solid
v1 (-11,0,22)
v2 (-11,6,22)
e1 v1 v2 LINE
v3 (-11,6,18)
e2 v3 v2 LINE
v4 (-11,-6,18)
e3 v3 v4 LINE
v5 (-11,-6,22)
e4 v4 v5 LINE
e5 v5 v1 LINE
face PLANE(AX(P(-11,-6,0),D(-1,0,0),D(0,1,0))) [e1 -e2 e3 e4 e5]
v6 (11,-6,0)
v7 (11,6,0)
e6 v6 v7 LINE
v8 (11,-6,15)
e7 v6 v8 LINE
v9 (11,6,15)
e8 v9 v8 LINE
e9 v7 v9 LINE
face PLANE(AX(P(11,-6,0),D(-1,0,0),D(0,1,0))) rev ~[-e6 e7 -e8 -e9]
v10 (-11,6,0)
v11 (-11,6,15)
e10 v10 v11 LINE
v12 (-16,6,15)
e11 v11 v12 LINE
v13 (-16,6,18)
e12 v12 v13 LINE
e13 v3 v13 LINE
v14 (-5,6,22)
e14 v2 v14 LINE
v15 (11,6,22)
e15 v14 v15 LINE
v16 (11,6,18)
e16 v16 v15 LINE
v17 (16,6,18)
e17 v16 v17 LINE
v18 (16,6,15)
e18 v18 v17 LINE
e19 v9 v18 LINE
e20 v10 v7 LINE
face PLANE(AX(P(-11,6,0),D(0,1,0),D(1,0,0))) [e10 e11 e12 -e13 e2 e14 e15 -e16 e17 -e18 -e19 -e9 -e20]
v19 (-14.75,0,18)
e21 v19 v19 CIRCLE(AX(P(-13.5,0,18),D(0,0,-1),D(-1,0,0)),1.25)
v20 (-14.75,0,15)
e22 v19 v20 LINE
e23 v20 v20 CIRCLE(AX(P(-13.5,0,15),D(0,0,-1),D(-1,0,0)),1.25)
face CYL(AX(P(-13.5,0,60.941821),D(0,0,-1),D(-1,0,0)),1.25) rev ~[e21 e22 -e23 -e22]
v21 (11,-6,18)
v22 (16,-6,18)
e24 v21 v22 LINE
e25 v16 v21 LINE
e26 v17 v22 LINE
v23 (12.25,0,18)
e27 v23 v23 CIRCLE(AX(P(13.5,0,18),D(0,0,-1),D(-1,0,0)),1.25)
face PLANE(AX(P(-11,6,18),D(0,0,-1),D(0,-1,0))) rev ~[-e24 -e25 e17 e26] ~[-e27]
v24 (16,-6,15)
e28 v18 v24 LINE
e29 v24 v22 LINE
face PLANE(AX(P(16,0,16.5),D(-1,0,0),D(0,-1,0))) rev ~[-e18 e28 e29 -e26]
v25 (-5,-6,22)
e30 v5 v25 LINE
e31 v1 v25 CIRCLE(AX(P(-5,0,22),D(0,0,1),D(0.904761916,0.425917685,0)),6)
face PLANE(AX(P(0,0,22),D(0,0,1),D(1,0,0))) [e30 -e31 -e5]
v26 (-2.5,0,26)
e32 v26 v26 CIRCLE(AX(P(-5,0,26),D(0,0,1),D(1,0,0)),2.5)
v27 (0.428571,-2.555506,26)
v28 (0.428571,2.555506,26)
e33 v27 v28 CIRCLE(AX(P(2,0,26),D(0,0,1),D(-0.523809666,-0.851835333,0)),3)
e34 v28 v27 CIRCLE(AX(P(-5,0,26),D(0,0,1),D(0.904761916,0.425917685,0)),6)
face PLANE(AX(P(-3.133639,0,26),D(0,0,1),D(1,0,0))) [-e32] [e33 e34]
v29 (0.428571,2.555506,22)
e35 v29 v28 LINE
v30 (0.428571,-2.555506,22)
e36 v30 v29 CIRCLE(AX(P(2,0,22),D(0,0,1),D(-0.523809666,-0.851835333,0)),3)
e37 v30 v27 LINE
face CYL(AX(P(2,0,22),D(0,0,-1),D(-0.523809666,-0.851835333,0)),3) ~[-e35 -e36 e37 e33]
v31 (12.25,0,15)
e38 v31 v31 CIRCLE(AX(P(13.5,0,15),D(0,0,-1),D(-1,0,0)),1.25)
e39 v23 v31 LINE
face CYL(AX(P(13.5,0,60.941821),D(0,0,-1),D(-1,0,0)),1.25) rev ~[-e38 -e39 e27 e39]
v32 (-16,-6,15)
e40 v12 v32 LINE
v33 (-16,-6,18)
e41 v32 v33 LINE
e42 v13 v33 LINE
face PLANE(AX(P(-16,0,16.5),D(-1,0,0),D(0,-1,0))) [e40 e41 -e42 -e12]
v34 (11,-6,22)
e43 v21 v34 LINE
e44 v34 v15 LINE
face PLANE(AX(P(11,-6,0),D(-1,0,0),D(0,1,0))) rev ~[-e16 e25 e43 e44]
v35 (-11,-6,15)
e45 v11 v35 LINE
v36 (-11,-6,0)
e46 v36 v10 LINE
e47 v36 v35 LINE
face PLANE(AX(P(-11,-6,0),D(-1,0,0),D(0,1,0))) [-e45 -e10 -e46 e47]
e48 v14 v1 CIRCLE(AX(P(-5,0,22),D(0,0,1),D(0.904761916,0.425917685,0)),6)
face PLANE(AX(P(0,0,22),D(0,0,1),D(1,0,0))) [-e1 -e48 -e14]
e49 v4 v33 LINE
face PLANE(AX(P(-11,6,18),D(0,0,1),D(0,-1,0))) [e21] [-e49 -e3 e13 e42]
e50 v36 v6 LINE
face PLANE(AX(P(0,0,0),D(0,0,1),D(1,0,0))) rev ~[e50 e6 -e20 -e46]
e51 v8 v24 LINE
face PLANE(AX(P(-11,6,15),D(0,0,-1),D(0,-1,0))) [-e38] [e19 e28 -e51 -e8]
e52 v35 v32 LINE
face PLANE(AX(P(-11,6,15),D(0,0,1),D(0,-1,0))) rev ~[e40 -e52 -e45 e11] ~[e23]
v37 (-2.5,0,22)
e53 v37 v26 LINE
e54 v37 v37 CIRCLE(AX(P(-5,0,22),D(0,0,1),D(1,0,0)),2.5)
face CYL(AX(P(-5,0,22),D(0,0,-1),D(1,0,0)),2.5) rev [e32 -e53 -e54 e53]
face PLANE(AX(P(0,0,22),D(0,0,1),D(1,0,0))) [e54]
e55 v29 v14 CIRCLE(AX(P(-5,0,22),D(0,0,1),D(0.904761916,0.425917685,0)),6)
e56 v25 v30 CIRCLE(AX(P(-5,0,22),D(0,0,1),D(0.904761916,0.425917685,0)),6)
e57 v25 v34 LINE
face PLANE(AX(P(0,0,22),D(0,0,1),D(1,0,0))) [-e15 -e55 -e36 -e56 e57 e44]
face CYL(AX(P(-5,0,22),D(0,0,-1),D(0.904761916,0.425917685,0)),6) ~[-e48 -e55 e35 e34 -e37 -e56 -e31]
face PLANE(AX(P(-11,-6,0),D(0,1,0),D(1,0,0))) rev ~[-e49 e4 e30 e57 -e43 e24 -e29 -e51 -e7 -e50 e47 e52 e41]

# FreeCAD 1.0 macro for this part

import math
import FreeCAD as App
import Part
import Sketcher

doc = App.newDocument("Part")
body = doc.addObject("PartDesign::Body", "Body")

# Sketch on XY plane
sketch1 = body.newObject("Sketcher::SketchObject", "Sketch")
sketch1.AttachmentSupport = (doc.getObject("XY_Plane"), [""])
sketch1.MapMode = "FlatFace"
sketch1.addGeometry([
    Part.LineSegment(App.Vector(-11, 6, 0), App.Vector(-11, -6, 0)),
    Part.LineSegment(App.Vector(-11, -6, 0), App.Vector(11, -6, 0)),
    Part.LineSegment(App.Vector(11, -6, 0), App.Vector(11, 6, 0)),
    Part.LineSegment(App.Vector(11, 6, 0), App.Vector(-11, 6, 0)),
], False)
sketch1.addConstraint([
    Sketcher.Constraint("Coincident", 0, 2, 1, 1),
    Sketcher.Constraint("Coincident", 1, 2, 2, 1),
    Sketcher.Constraint("Coincident", 2, 2, 3, 1),
    Sketcher.Constraint("Coincident", 3, 2, 0, 1),
    Sketcher.Constraint("Vertical", 0),
    Sketcher.Constraint("Horizontal", 1),
    Sketcher.Constraint("Vertical", 2),
    Sketcher.Constraint("Horizontal", 3),
    Sketcher.Constraint("Symmetric", 0, 2, 2, 2, -1, 1),
    Sketcher.Constraint("DistanceX", 1, 1, 1, 2, 22.0),
    Sketcher.Constraint("DistanceY", 0, 2, 0, 1, 12.0),
])
pad1 = body.newObject("PartDesign::Pad", "Pad")
pad1.Profile = sketch1
pad1.Length = 22

# Sketch on XY plane
sketch2 = body.newObject("Sketcher::SketchObject", "Sketch001")
sketch2.AttachmentSupport = (doc.getObject("XY_Plane"), [""])
sketch2.MapMode = "FlatFace"
sketch2.AttachmentOffset = App.Placement(App.Vector(0, 0, 22), App.Rotation())
sketch2.addGeometry([
    Part.ArcOfCircle(Part.Circle(App.Vector(2, 0, 0), App.Vector(0, 0, 1), 3), math.radians(-122), math.radians(122)),
    Part.ArcOfCircle(Part.Circle(App.Vector(-5, 0, 0), App.Vector(0, 0, 1), 6), math.radians(25), math.radians(335)),
    Part.Circle(App.Vector(-5, 0, 0), App.Vector(0, 0, 1), 2.5),
], False)
sketch2.addConstraint([
    Sketcher.Constraint("Coincident", 0, 1, 1, 2),
    Sketcher.Constraint("Coincident", 1, 1, 0, 2),
    Sketcher.Constraint("Coincident", 2, 3, 1, 3),
    Sketcher.Constraint("Symmetric", 0, 1, 1, 1, -1),
    Sketcher.Constraint("Diameter", 2, 5.0),
    Sketcher.Constraint("Radius", 0, 3.0),
    Sketcher.Constraint("Radius", 1, 6.0),
    Sketcher.Constraint("DistanceX", -1, 1, 0, 3, 2.0),
    Sketcher.Constraint("DistanceX", 1, 3, -1, 1, 5.0),
])
pad2 = body.newObject("PartDesign::Pad", "Pad001")
pad2.Profile = sketch2
pad2.Length = 4

# Sketch on YZ plane
sketch3 = body.newObject("Sketcher::SketchObject", "Sketch002")
sketch3.AttachmentSupport = (doc.getObject("YZ_Plane"), [""])
sketch3.MapMode = "FlatFace"
sketch3.AttachmentOffset = App.Placement(App.Vector(0, 0, -11), App.Rotation())
sketch3.addGeometry([
    Part.LineSegment(App.Vector(6, 18, 0), App.Vector(6, 15, 0)),
    Part.LineSegment(App.Vector(6, 15, 0), App.Vector(-6, 15, 0)),
    Part.LineSegment(App.Vector(-6, 15, 0), App.Vector(-6, 18, 0)),
    Part.LineSegment(App.Vector(-6, 18, 0), App.Vector(6, 18, 0)),
], False)
sketch3.addConstraint([
    Sketcher.Constraint("Coincident", 0, 2, 1, 1),
    Sketcher.Constraint("Coincident", 1, 2, 2, 1),
    Sketcher.Constraint("Coincident", 2, 2, 3, 1),
    Sketcher.Constraint("Coincident", 3, 2, 0, 1),
    Sketcher.Constraint("Vertical", 0),
    Sketcher.Constraint("Horizontal", 1),
    Sketcher.Constraint("Vertical", 2),
    Sketcher.Constraint("Horizontal", 3),
    Sketcher.Constraint("DistanceX", 1, 2, 1, 1, 12.0),
    Sketcher.Constraint("DistanceY", 0, 2, 0, 1, 3.0),
    Sketcher.Constraint("DistanceX", -1, 1, 0, 2, 6.0),
    Sketcher.Constraint("DistanceY", -1, 1, 0, 2, 15.0),
])
pad3 = body.newObject("PartDesign::Pad", "Pad002")
pad3.Profile = sketch3
pad3.Type = "TwoLengths"
pad3.Length = 5
pad3.Length2 = 27
pad3.Reversed = True

# Sketch on XY plane
sketch4 = body.newObject("Sketcher::SketchObject", "Sketch003")
sketch4.AttachmentSupport = (doc.getObject("XY_Plane"), [""])
sketch4.MapMode = "FlatFace"
sketch4.AttachmentOffset = App.Placement(App.Vector(0, 0, 18), App.Rotation())
sketch4.addGeometry([
    Part.Circle(App.Vector(13.5, 0, 0), App.Vector(0, 0, 1), 1.2),
    Part.Circle(App.Vector(-13.5, 0, 0), App.Vector(0, 0, 1), 1.2),
], False)
sketch4.addConstraint([
    Sketcher.Constraint("Equal", 0, 1),
    Sketcher.Constraint("Symmetric", 0, 3, 1, 3, -1, 1),
    Sketcher.Constraint("PointOnObject", 0, 3, -1),
    Sketcher.Constraint("Diameter", 0, 2.5),
    Sketcher.Constraint("DistanceX", 1, 3, 0, 3, 27.0),
])
doc.recompute()
hole = body.newObject("PartDesign::Hole", "Hole")
hole.Profile = sketch4
hole.ThreadType = "None"
hole.Diameter = 2.5
hole.DepthType = "ThroughAll"

doc.recompute()
